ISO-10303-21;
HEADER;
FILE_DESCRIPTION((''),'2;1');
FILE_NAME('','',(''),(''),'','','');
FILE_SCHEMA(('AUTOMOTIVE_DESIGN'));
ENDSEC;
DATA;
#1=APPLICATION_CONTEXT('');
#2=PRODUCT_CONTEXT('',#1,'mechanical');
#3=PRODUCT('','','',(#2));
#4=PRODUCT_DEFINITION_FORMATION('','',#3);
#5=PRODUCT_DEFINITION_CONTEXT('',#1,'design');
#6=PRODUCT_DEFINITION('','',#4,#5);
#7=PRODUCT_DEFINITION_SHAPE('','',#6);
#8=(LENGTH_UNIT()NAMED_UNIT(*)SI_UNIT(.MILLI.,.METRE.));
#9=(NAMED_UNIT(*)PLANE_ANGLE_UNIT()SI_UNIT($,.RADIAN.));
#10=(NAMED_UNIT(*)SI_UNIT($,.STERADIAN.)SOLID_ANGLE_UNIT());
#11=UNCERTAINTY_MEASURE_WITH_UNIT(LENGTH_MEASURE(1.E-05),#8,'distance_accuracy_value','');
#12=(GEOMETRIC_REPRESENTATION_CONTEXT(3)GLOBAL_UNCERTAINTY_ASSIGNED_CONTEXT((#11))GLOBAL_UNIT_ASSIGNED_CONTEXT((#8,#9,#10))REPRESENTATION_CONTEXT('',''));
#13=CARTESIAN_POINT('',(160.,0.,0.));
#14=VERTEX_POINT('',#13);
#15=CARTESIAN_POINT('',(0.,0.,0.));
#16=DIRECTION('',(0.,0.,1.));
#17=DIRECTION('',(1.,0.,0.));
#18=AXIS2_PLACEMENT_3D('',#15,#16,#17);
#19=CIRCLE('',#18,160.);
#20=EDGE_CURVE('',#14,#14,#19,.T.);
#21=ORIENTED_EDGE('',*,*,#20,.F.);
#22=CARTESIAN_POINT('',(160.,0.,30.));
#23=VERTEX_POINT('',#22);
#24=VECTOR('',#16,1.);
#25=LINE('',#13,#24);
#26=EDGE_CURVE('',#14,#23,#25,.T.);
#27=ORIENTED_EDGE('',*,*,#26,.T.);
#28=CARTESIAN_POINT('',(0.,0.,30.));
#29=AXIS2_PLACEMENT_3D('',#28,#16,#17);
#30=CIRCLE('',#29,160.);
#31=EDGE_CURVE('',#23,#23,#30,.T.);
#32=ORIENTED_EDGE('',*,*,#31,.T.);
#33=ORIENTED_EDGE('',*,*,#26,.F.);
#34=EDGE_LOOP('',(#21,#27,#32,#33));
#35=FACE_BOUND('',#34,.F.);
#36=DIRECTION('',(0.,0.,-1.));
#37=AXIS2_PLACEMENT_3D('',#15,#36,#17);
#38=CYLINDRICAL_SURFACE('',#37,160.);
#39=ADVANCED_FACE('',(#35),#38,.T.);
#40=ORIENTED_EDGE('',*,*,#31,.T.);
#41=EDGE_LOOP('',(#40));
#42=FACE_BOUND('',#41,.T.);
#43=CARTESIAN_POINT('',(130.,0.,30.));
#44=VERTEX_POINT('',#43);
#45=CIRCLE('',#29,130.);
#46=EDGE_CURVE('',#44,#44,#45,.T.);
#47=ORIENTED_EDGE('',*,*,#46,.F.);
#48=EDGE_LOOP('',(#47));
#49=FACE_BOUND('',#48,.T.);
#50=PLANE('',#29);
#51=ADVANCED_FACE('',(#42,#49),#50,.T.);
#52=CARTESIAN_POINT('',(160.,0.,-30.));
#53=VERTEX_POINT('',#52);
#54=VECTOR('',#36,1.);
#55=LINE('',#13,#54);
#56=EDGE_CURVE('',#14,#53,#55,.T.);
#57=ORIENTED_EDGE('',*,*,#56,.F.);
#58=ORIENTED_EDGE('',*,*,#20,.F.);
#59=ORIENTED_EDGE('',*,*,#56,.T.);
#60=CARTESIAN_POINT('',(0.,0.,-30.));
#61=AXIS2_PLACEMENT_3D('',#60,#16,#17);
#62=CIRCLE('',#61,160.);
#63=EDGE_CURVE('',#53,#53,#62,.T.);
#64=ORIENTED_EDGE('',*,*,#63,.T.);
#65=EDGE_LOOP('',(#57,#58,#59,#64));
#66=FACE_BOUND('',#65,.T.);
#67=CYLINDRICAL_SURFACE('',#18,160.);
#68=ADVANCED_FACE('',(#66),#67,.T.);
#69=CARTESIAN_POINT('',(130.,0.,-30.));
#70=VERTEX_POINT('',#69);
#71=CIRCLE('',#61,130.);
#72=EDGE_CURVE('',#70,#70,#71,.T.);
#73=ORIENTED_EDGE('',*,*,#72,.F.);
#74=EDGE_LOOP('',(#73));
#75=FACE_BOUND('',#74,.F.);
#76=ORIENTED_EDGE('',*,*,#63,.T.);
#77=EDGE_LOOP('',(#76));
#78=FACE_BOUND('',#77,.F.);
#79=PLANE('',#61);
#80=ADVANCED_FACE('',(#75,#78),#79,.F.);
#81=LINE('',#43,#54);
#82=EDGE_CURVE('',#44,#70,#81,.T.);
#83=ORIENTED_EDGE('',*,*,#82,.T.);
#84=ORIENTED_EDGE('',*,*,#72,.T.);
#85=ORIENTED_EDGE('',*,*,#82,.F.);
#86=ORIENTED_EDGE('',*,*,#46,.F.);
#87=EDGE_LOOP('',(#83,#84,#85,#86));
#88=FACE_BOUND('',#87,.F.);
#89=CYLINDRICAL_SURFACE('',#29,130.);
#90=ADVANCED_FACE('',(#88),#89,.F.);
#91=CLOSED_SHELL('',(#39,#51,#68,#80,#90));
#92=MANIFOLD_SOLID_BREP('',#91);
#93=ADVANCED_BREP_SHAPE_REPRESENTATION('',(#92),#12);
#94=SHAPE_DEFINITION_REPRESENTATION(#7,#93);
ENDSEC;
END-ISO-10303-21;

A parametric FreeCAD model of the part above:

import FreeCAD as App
import Part
import Sketcher

V = App.Vector
Q = App.Units.Quantity

doc = App.newDocument("Part")
params = doc.addObject("Spreadsheet::Sheet", "Params")
for row, (alias, value) in enumerate([
    ("sketch1_diameter", "320 mm"),
    ("pad1_length", "60 mm"),
    ("sketch2_diameter", "260 mm"),
], start=1):
    params.set(f"A{row}", alias)
    params.set(f"B{row}", "=" + value)
    params.setAlias(f"B{row}", alias)

body = doc.addObject("PartDesign::Body", "Body")

# Sketch on XY plane
sketch1 = body.newObject("Sketcher::SketchObject", "Sketch")
sketch1.AttachmentSupport = (doc.getObject("XY_Plane"), [""])
sketch1.MapMode = "FlatFace"
sketch1.addGeometry(Part.Circle(V(0, 0, 0), V(0, 0, 1), 160), False)
sketch1.addConstraint(Sketcher.Constraint("Coincident", 0, 3, -1, 1))
sketch1.addConstraint(Sketcher.Constraint("Diameter", 0, Q("320 mm")))
sketch1.setExpression("Constraints[1]", "Params.sketch1_diameter")
pad1 = body.newObject("PartDesign::Pad", "Pad")
pad1.Profile = sketch1
pad1.setExpression("Length", "Params.pad1_length")
pad1.Midplane = True

# Sketch on XY plane
sketch2 = body.newObject("Sketcher::SketchObject", "Sketch001")
sketch2.AttachmentSupport = (doc.getObject("XY_Plane"), [""])
sketch2.MapMode = "FlatFace"
sketch2.AttachmentOffset = App.Placement(V(0, 0, 30), App.Rotation())
sketch2.addGeometry(Part.Circle(V(0, 0, 0), V(0, 0, 1), 130), False)
sketch2.addConstraint(Sketcher.Constraint("Coincident", 0, 3, -1, 1))
sketch2.addConstraint(Sketcher.Constraint("Diameter", 0, Q("260 mm")))
sketch2.setExpression("Constraints[1]", "Params.sketch2_diameter")
pocket1 = body.newObject("PartDesign::Pocket", "Pocket")
pocket1.Profile = sketch2
pocket1.Type = "ThroughAll"

doc.recompute()
